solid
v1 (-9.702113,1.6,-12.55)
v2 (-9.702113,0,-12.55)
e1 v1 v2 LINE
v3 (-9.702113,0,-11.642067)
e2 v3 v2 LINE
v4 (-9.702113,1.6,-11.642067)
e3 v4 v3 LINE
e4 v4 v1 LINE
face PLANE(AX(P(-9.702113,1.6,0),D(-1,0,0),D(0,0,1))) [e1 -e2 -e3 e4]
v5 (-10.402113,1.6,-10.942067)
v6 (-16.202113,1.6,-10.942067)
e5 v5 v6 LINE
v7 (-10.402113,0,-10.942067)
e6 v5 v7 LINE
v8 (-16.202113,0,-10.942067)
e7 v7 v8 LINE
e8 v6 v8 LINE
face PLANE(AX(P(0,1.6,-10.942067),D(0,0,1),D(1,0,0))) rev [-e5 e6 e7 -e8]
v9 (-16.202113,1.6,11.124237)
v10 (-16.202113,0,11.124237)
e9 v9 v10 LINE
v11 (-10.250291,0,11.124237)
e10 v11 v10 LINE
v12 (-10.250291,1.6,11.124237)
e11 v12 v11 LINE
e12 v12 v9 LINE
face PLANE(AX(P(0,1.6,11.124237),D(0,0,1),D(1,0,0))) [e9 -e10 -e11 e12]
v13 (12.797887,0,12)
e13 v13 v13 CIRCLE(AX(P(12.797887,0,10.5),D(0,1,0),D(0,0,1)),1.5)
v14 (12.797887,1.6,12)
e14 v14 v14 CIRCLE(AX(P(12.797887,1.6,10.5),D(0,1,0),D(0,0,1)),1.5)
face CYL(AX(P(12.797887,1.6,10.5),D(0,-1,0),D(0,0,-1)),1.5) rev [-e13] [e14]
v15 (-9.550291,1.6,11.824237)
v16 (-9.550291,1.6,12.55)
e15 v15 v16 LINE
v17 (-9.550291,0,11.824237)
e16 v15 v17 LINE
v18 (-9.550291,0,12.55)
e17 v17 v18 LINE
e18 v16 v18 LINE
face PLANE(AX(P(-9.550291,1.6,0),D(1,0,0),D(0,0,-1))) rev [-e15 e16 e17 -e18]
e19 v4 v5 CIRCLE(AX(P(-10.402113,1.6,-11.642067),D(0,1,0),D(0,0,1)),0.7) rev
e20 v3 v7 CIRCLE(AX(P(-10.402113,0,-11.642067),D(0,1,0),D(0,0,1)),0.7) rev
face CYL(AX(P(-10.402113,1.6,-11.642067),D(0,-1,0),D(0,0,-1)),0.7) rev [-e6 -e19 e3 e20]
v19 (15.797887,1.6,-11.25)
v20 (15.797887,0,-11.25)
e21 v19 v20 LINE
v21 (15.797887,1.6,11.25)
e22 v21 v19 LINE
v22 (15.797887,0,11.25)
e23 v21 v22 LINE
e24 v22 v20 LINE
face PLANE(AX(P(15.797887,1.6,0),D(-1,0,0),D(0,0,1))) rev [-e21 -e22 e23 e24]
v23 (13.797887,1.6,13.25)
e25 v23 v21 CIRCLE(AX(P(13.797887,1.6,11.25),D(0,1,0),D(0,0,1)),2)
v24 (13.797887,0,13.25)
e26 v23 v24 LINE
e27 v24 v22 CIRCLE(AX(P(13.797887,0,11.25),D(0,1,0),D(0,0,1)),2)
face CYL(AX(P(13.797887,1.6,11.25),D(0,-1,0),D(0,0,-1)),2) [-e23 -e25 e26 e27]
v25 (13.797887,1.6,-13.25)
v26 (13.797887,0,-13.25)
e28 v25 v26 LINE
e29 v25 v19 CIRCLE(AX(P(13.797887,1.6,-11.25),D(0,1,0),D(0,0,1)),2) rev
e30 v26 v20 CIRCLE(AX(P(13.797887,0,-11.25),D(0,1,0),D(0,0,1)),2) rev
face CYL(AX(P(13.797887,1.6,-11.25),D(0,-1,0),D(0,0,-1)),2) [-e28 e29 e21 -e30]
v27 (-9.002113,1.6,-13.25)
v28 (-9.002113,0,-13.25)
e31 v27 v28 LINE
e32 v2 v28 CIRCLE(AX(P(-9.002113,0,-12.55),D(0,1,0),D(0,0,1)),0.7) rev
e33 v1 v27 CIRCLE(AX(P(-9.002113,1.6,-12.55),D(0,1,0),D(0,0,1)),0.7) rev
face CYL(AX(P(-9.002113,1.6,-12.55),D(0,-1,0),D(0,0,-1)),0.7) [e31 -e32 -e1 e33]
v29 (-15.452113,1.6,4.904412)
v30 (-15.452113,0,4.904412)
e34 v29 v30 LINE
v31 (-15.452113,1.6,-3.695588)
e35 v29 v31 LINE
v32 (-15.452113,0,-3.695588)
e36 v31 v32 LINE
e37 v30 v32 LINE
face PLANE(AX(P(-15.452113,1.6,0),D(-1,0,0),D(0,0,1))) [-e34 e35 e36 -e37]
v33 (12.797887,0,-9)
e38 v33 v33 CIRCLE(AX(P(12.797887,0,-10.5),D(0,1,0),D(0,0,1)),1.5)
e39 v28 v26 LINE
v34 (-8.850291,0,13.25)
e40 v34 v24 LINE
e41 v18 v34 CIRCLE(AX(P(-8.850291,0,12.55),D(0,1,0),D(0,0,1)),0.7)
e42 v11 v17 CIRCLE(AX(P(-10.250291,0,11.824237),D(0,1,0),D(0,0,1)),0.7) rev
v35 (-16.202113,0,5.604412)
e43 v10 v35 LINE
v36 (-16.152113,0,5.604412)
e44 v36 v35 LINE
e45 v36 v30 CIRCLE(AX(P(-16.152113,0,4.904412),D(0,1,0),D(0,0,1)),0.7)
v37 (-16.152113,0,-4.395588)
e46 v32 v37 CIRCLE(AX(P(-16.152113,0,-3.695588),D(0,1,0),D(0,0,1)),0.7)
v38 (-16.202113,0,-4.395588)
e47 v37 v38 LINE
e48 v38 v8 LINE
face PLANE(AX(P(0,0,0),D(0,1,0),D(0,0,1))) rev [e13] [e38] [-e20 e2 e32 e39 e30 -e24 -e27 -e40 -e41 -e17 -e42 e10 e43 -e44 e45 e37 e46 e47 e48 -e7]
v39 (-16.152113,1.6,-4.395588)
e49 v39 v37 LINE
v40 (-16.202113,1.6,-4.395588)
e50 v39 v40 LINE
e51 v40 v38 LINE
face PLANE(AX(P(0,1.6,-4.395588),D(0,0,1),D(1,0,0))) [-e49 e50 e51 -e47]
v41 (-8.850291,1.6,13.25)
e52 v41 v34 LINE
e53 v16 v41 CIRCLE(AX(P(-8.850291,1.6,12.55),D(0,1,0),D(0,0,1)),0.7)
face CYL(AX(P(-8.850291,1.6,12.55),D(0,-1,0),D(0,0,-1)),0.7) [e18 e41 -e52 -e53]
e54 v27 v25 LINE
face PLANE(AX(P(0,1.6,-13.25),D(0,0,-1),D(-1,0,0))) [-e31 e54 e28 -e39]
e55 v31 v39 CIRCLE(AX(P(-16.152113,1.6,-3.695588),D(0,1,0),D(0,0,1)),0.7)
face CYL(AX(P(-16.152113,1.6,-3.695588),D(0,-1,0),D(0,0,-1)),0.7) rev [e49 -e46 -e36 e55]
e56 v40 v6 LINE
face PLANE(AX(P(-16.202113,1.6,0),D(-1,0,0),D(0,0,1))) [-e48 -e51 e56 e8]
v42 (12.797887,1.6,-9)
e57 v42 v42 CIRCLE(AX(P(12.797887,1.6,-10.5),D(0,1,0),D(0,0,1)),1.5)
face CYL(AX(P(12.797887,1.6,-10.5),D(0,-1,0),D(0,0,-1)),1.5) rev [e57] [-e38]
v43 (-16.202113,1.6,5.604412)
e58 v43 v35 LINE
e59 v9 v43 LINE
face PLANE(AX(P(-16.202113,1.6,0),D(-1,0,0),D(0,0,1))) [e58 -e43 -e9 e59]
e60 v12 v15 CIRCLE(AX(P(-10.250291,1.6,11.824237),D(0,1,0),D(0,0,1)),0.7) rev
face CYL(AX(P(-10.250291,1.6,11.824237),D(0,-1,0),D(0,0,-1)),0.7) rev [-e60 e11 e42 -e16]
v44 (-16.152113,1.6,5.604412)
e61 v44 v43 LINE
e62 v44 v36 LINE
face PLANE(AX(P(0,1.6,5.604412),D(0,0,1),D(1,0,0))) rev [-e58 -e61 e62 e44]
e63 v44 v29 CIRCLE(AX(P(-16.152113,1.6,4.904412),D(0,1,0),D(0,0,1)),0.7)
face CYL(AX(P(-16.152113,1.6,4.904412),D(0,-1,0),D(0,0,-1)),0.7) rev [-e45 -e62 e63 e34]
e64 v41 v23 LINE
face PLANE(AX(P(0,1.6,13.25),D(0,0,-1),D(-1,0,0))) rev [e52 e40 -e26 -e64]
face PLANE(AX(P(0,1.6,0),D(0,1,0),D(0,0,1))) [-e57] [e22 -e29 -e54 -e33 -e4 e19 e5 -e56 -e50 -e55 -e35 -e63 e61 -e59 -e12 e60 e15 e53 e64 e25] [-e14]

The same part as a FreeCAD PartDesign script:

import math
import FreeCAD as App
import Part
import Sketcher
Q = App.Units.Quantity

doc = App.newDocument("Part")
body = doc.addObject("PartDesign::Body", "Body")

# Sketch on XZ plane
sketch1 = body.newObject("Sketcher::SketchObject", "Sketch")
sketch1.AttachmentSupport = (doc.getObject("XZ_Plane"), [""])
sketch1.MapMode = "FlatFace"
sketch1.addGeometry(Part.LineSegment(App.Vector(-9.7, -12.55, 0), App.Vector(-9.7, -11.64, 0)), False)
sketch1.addGeometry(Part.ArcOfCircle(Part.Circle(App.Vector(-10.4, -11.64, 0), App.Vector(0, 0, 1), 0.7), math.radians(0), math.radians(90)), False)
sketch1.addGeometry(Part.LineSegment(App.Vector(-10.4, -10.94, 0), App.Vector(-16.2, -10.94, 0)), False)
sketch1.addGeometry(Part.LineSegment(App.Vector(-16.2, -10.94, 0), App.Vector(-16.2, -4.4, 0)), False)
sketch1.addGeometry(Part.LineSegment(App.Vector(-16.2, -4.4, 0), App.Vector(-16.15, -4.4, 0)), False)
sketch1.addGeometry(Part.ArcOfCircle(Part.Circle(App.Vector(-16.15, -3.7, 0), App.Vector(0, 0, 1), 0.7), math.radians(-90), math.radians(0)), False)
sketch1.addGeometry(Part.LineSegment(App.Vector(-15.45, -3.7, 0), App.Vector(-15.45, 4.9, 0)), False)
sketch1.addGeometry(Part.ArcOfCircle(Part.Circle(App.Vector(-16.15, 4.9, 0), App.Vector(0, 0, 1), 0.7), math.radians(0), math.radians(90)), False)
sketch1.addGeometry(Part.LineSegment(App.Vector(-16.15, 5.6, 0), App.Vector(-16.2, 5.6, 0)), False)
sketch1.addGeometry(Part.LineSegment(App.Vector(-16.2, 5.6, 0), App.Vector(-16.2, 11.12, 0)), False)
sketch1.addGeometry(Part.LineSegment(App.Vector(-16.2, 11.12, 0), App.Vector(-10.25, 11.12, 0)), False)
sketch1.addGeometry(Part.ArcOfCircle(Part.Circle(App.Vector(-10.25, 11.82, 0), App.Vector(0, 0, 1), 0.7), math.radians(-90), math.radians(0)), False)
sketch1.addGeometry(Part.LineSegment(App.Vector(-9.55, 11.82, 0), App.Vector(-9.55, 12.55, 0)), False)
sketch1.addGeometry(Part.ArcOfCircle(Part.Circle(App.Vector(-8.85, 12.55, 0), App.Vector(0, 0, 1), 0.7), math.radians(90), math.radians(180)), False)
sketch1.addGeometry(Part.LineSegment(App.Vector(-8.85, 13.25, 0), App.Vector(13.8, 13.25, 0)), False)
sketch1.addGeometry(Part.ArcOfCircle(Part.Circle(App.Vector(13.8, 11.25, 0), App.Vector(0, 0, 1), 2), math.radians(0), math.radians(90)), False)
sketch1.addGeometry(Part.LineSegment(App.Vector(15.8, 11.25, 0), App.Vector(15.8, -11.25, 0)), False)
sketch1.addGeometry(Part.ArcOfCircle(Part.Circle(App.Vector(13.8, -11.25, 0), App.Vector(0, 0, 1), 2), math.radians(-90), math.radians(0)), False)
sketch1.addGeometry(Part.LineSegment(App.Vector(13.8, -13.25, 0), App.Vector(-9, -13.25, 0)), False)
sketch1.addGeometry(Part.ArcOfCircle(Part.Circle(App.Vector(-9, -12.55, 0), App.Vector(0, 0, 1), 0.7), math.radians(180), math.radians(270)), False)
sketch1.addGeometry(Part.Circle(App.Vector(12.8, 10.5, 0), App.Vector(0, 0, 1), 1.5), False)
sketch1.addGeometry(Part.Circle(App.Vector(12.8, -10.5, 0), App.Vector(0, 0, 1), 1.5), False)
sketch1.addConstraint(Sketcher.Constraint("Tangent", 0, 2, 1, 1))
sketch1.addConstraint(Sketcher.Constraint("Tangent", 1, 2, 2, 1))
sketch1.addConstraint(Sketcher.Constraint("Coincident", 2, 2, 3, 1))
sketch1.addConstraint(Sketcher.Constraint("Coincident", 3, 2, 4, 1))
sketch1.addConstraint(Sketcher.Constraint("Tangent", 4, 2, 5, 1))
sketch1.addConstraint(Sketcher.Constraint("Tangent", 5, 2, 6, 1))
sketch1.addConstraint(Sketcher.Constraint("Tangent", 6, 2, 7, 1))
sketch1.addConstraint(Sketcher.Constraint("Tangent", 7, 2, 8, 1))
sketch1.addConstraint(Sketcher.Constraint("Coincident", 8, 2, 9, 1))
sketch1.addConstraint(Sketcher.Constraint("Coincident", 9, 2, 10, 1))
sketch1.addConstraint(Sketcher.Constraint("Tangent", 10, 2, 11, 1))
sketch1.addConstraint(Sketcher.Constraint("Tangent", 11, 2, 12, 1))
sketch1.addConstraint(Sketcher.Constraint("Tangent", 12, 2, 13, 2))
sketch1.addConstraint(Sketcher.Constraint("Tangent", 13, 1, 14, 1))
sketch1.addConstraint(Sketcher.Constraint("Tangent", 14, 2, 15, 2))
sketch1.addConstraint(Sketcher.Constraint("Tangent", 15, 1, 16, 1))
sketch1.addConstraint(Sketcher.Constraint("Tangent", 16, 2, 17, 2))
sketch1.addConstraint(Sketcher.Constraint("Tangent", 17, 1, 18, 1))
sketch1.addConstraint(Sketcher.Constraint("Tangent", 18, 2, 19, 2))
sketch1.addConstraint(Sketcher.Constraint("Tangent", 19, 1, 0, 1))
sketch1.addConstraint(Sketcher.Constraint("Vertical", 0))
sketch1.addConstraint(Sketcher.Constraint("Horizontal", 2))
sketch1.addConstraint(Sketcher.Constraint("Vertical", 3))
sketch1.addConstraint(Sketcher.Constraint("Horizontal", 4))
sketch1.addConstraint(Sketcher.Constraint("Vertical", 6))
sketch1.addConstraint(Sketcher.Constraint("Horizontal", 8))
sketch1.addConstraint(Sketcher.Constraint("Vertical", 9))
sketch1.addConstraint(Sketcher.Constraint("Horizontal", 10))
sketch1.addConstraint(Sketcher.Constraint("Vertical", 12))
sketch1.addConstraint(Sketcher.Constraint("Horizontal", 14))
sketch1.addConstraint(Sketcher.Constraint("Vertical", 16))
sketch1.addConstraint(Sketcher.Constraint("Horizontal", 18))
sketch1.addConstraint(Sketcher.Constraint("Equal", 1, 5))
sketch1.addConstraint(Sketcher.Constraint("Equal", 5, 7))
sketch1.addConstraint(Sketcher.Constraint("Equal", 7, 11))
sketch1.addConstraint(Sketcher.Constraint("Equal", 11, 13))
sketch1.addConstraint(Sketcher.Constraint("Equal", 15, 17))
sketch1.addConstraint(Sketcher.Constraint("Equal", 13, 19))
sketch1.addConstraint(Sketcher.Constraint("Equal", 20, 21))
sketch1.addConstraint(Sketcher.Constraint("Symmetric", 20, 3, 21, 3, -1))
sketch1.addConstraint(Sketcher.Constraint("Vertical", 3, 2, 8, 2))
sketch1.addConstraint(Sketcher.Constraint("Diameter", 20, Q("3 mm")))
sketch1.addConstraint(Sketcher.Constraint("Radius", 15, Q("2 mm")))
sketch1.addConstraint(Sketcher.Constraint("Radius", 1, Q("0.7 mm")))
sketch1.addConstraint(Sketcher.Constraint("DistanceX", 2, 2, 2, 1, Q("5.8 mm")))
sketch1.addConstraint(Sketcher.Constraint("DistanceX", 18, 2, 18, 1, Q("22.8 mm")))
sketch1.addConstraint(Sketcher.Constraint("DistanceY", 6, 1, 6, 2, Q("8.6 mm")))
sketch1.addConstraint(Sketcher.Constraint("DistanceY", 16, 2, 16, 1, Q("22.5 mm")))
sketch1.addConstraint(Sketcher.Constraint("DistanceX", 20, 3, 15, 3, Q("1 mm")))
sketch1.addConstraint(Sketcher.Constraint("DistanceY", 21, 3, 20, 3, Q("21 mm")))
sketch1.addConstraint(Sketcher.Constraint("DistanceX", 4, 1, 4, 2, Q("0.05 mm")))
sketch1.addConstraint(Sketcher.Constraint("DistanceY", -1, 1, 13, 3, Q("12.55 mm")))
sketch1.addConstraint(Sketcher.Constraint("DistanceY", 3, 1, 3, 2, Q("6.546479 mm")))
sketch1.addConstraint(Sketcher.Constraint("DistanceX", 10, 1, 10, 2, Q("5.951822 mm")))
sketch1.addConstraint(Sketcher.Constraint("DistanceY", 0, 1, 0, 2, Q("0.907933 mm")))
sketch1.addConstraint(Sketcher.Constraint("DistanceY", 9, 1, 9, 2, Q("5.519825 mm")))
sketch1.addConstraint(Sketcher.Constraint("DistanceX", 11, 3, -1, 1, Q("10.250291 mm")))
pad1 = body.newObject("PartDesign::Pad", "Pad")
pad1.Profile = sketch1
pad1.Length = 1.6
pad1.Reversed = True

doc.recompute()
